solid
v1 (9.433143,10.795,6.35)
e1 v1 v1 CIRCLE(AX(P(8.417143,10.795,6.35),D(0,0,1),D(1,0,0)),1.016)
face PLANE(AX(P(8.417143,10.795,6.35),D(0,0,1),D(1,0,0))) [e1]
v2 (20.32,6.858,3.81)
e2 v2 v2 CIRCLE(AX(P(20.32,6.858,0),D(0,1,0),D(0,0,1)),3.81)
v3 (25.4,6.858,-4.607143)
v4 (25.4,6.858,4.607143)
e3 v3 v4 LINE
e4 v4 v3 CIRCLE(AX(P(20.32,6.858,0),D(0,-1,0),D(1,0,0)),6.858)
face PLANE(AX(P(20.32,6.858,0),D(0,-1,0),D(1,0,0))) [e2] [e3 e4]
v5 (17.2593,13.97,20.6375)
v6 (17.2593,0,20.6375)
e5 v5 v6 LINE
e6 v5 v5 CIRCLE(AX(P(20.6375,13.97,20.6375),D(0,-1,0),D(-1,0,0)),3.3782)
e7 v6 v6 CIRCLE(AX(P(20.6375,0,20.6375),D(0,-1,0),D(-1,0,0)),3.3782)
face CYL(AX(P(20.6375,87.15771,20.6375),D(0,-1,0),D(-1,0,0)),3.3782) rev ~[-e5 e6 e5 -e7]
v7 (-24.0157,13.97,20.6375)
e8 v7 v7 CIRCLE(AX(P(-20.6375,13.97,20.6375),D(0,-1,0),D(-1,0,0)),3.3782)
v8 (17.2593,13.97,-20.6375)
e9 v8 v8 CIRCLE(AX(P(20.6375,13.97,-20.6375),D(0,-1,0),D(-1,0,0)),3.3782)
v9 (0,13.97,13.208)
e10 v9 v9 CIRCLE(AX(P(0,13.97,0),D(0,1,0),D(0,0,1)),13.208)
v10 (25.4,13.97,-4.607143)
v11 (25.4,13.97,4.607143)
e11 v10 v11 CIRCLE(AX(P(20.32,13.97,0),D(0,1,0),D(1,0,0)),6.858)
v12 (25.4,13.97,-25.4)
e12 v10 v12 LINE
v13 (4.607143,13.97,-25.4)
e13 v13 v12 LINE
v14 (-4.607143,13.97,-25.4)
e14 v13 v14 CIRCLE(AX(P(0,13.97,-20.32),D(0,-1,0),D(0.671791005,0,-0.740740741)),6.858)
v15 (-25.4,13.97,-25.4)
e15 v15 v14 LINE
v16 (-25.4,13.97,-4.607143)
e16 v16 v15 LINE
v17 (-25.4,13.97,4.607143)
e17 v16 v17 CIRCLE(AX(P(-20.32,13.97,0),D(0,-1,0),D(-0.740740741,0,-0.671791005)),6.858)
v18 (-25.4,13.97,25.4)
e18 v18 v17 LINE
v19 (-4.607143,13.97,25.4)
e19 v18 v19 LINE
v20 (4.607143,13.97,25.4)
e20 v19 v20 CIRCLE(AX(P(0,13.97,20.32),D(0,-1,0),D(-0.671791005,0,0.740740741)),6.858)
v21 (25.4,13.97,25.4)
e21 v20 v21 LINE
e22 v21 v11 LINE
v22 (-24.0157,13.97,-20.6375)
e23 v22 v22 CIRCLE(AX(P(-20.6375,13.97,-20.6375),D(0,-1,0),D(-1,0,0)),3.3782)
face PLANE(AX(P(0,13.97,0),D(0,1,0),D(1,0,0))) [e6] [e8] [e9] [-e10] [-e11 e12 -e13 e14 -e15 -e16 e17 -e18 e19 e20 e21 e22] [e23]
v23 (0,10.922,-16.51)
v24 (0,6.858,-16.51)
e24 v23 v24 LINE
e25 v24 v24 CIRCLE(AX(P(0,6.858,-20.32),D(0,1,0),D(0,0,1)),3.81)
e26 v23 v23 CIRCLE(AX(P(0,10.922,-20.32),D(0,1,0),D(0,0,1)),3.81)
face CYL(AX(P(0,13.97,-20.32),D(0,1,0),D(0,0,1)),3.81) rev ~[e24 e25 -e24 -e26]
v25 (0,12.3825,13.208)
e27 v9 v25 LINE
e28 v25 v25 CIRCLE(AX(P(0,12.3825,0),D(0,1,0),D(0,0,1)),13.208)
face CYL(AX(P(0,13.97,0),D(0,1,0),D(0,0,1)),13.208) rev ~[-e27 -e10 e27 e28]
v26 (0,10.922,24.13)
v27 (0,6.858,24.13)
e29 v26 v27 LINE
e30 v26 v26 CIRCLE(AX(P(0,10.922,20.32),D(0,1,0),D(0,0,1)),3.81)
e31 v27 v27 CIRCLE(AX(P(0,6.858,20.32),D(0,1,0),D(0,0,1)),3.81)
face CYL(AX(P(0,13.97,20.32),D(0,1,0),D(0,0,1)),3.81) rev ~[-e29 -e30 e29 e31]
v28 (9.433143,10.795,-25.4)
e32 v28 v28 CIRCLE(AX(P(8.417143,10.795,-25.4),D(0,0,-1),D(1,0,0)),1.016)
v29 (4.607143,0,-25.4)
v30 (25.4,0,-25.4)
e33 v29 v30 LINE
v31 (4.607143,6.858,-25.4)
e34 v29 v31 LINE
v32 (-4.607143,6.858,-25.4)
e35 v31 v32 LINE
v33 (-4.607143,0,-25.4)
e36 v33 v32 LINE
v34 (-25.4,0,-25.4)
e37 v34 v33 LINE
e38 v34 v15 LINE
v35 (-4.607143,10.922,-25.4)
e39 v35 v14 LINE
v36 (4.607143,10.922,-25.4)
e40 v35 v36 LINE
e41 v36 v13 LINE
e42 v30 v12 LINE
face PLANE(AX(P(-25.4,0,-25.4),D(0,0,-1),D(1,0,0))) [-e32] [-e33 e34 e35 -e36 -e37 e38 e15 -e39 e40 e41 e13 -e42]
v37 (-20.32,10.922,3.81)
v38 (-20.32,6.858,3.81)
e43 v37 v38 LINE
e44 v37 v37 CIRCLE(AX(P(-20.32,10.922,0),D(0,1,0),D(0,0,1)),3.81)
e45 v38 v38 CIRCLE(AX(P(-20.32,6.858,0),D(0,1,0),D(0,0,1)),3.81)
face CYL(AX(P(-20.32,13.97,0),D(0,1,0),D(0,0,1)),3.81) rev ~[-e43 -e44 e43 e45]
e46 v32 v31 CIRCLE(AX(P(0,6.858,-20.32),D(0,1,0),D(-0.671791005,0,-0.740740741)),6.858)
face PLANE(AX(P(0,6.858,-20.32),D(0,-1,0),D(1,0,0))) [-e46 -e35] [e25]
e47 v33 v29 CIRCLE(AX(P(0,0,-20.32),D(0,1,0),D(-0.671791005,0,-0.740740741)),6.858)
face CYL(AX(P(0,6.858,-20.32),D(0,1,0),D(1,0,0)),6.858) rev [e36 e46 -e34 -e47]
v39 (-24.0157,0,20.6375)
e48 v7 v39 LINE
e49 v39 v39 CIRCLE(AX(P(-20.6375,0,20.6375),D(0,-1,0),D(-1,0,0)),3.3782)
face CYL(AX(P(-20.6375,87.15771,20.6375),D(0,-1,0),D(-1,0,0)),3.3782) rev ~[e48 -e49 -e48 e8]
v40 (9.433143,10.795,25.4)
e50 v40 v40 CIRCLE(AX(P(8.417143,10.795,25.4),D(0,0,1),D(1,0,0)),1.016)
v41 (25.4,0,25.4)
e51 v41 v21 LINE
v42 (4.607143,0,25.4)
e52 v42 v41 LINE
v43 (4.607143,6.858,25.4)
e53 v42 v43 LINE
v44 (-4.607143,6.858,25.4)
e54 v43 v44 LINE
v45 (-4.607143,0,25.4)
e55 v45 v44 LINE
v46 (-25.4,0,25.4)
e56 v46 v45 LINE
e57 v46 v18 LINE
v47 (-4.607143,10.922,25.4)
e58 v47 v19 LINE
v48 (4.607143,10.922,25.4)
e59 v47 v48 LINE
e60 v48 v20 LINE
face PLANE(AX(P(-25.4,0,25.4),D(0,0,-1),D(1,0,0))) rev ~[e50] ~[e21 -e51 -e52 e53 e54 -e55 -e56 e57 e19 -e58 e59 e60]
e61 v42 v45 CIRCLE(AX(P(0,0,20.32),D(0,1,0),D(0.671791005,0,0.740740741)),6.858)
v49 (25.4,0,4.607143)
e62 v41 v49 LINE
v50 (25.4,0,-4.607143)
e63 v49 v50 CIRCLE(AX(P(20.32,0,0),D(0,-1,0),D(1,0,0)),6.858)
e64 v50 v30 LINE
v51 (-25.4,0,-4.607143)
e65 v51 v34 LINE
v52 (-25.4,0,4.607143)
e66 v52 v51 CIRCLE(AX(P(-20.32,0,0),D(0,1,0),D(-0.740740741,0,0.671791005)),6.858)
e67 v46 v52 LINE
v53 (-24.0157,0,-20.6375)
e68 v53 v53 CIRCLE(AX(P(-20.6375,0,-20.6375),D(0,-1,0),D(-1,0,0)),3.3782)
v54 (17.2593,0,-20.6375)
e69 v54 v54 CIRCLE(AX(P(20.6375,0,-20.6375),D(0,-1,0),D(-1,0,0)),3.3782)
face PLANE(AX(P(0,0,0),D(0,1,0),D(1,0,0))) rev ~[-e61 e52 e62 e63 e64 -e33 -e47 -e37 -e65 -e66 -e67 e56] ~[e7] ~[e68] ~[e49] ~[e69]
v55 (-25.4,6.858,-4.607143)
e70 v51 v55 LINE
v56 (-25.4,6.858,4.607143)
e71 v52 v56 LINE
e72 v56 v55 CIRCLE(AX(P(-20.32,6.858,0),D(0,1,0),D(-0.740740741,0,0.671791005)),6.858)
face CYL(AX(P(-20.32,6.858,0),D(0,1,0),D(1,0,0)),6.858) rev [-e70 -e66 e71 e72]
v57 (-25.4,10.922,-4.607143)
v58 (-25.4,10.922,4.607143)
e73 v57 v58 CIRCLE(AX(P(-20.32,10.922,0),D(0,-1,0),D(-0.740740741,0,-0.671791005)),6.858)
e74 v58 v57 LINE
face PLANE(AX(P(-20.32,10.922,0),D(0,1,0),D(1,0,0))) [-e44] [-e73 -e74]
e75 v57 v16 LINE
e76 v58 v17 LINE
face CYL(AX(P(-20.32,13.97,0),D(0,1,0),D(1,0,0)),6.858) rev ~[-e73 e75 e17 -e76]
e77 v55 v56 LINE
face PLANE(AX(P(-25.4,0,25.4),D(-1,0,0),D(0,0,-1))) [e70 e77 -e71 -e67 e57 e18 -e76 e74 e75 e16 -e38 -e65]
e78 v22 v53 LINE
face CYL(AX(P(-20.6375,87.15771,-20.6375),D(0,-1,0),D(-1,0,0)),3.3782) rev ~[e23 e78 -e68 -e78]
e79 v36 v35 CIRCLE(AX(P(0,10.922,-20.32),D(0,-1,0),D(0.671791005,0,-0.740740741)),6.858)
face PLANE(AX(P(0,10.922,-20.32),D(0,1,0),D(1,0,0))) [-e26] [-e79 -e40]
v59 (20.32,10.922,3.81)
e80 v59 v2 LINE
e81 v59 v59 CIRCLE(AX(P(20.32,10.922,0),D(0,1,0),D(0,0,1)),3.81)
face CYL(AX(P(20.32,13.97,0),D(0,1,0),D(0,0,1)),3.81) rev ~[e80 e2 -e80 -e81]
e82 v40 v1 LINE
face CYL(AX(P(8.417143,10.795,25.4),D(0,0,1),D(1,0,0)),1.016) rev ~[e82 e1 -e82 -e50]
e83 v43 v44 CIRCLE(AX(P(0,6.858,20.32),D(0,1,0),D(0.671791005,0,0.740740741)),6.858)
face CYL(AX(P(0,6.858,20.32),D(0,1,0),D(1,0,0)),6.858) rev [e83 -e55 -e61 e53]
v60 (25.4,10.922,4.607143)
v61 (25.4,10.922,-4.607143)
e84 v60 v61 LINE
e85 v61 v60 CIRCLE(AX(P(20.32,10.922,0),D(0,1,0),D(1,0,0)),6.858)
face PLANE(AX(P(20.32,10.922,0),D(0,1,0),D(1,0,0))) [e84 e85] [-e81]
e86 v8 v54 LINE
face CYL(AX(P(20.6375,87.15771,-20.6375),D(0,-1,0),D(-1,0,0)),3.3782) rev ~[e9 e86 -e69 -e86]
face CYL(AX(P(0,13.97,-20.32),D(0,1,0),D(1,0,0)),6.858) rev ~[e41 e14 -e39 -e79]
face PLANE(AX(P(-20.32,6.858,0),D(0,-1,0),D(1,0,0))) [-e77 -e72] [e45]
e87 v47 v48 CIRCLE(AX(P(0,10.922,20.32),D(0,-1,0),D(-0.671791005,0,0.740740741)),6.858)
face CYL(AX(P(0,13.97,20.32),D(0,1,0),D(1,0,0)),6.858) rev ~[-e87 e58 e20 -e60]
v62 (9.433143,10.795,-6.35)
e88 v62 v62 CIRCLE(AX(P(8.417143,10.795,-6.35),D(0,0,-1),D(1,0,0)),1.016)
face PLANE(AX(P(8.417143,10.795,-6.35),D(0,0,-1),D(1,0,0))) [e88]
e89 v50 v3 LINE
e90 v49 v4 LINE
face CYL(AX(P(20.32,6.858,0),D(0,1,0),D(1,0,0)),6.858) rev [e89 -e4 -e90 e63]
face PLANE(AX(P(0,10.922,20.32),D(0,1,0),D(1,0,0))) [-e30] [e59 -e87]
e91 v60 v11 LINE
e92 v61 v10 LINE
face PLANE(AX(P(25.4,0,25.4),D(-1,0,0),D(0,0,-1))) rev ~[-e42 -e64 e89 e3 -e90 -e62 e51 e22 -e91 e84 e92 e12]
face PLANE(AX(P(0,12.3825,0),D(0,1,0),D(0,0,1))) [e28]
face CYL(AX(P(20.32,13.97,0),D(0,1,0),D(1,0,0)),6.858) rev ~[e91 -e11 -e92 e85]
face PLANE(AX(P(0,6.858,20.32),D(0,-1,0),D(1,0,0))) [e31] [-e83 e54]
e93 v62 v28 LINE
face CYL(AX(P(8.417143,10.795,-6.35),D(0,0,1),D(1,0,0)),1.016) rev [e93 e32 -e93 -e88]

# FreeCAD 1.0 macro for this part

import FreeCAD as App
import Part
import Sketcher
Q = App.Units.Quantity

doc = App.newDocument("Part")
params = doc.addObject("Spreadsheet::Sheet", "Params")
for row, (alias, value) in enumerate([
    ("sketch1_width", "2 in"),
    ("pad1_length", "0.55 in"),
    ("sketch2_diameter", "0.266 in"),
    ("hole_diameter", "0.266 in"),
    ("sketch3_diameter", "1.04 in"),
    ("pocket1_length", "0.0625 in"),
    ("sketch4_diameter", "0.3 in"),
    ("sketch5_diameter", "0.54 in"),
    ("pocket3_length", "0.12 in"),
    ("sketch6_diameter", "0.54 in"),
    ("pocket4_length", "0.27 in"),
    ("sketch7_diameter", "0.08 in"),
    ("pocket5_length", "0.75 in"),
    ("sketch8_diameter", "0.08 in"),
    ("pocket6_length", "0.75 in"),
], start=1):
    params.set(f"A{row}", alias)
    params.set(f"B{row}", "=" + value)
    params.setAlias(f"B{row}", alias)

body = doc.addObject("PartDesign::Body", "Body")

sketch1 = body.newObject("Sketcher::SketchObject", "Sketch")
sketch1.AttachmentSupport = (doc.getObject("XZ_Plane"), [""])
sketch1.MapMode = "FlatFace"
sketch1.addGeometry([
    Part.LineSegment(App.Vector(-25.4, -25.4, 0), App.Vector(-25.4, 25.4, 0)),
    Part.LineSegment(App.Vector(-25.4, 25.4, 0), App.Vector(25.4, 25.4, 0)),
    Part.LineSegment(App.Vector(25.4, 25.4, 0), App.Vector(25.4, -25.4, 0)),
    Part.LineSegment(App.Vector(25.4, -25.4, 0), App.Vector(-25.4, -25.4, 0)),
], False)
sketch1.addConstraint([
    Sketcher.Constraint("Coincident", 0, 2, 1, 1),
    Sketcher.Constraint("Coincident", 1, 2, 2, 1),
    Sketcher.Constraint("Coincident", 2, 2, 3, 1),
    Sketcher.Constraint("Coincident", 3, 2, 0, 1),
    Sketcher.Constraint("Vertical", 0),
    Sketcher.Constraint("Horizontal", 1),
    Sketcher.Constraint("Vertical", 2),
    Sketcher.Constraint("Horizontal", 3),
    Sketcher.Constraint("Symmetric", 0, 2, 2, 2, -1, 1),
    Sketcher.Constraint("Equal", 3, 0),
    Sketcher.Constraint("DistanceX", 1, 1, 1, 2, Q("2 in")),
])
sketch1.setExpression("Constraints[10]", "Params.sketch1_width")
pad1 = body.newObject("PartDesign::Pad", "Pad")
pad1.Profile = sketch1
pad1.setExpression("Length", "Params.pad1_length")
pad1.Reversed = True

sketch2 = body.newObject("Sketcher::SketchObject", "Sketch001")
sketch2.AttachmentSupport = (doc.getObject("XZ_Plane"), [""])
sketch2.MapMode = "FlatFace"
sketch2.AttachmentOffset = App.Placement(App.Vector(0, 0, -0.55 * 25.4), App.Rotation())
sketch2.addGeometry([
    Part.Circle(App.Vector(-20.6375, 20.6375, 0), App.Vector(0, 0, 1), 3.3782),
    Part.Circle(App.Vector(-20.6375, -20.6375, 0), App.Vector(0, 0, 1), 3.3782),
    Part.Circle(App.Vector(20.6375, -20.6375, 0), App.Vector(0, 0, 1), 3.3782),
    Part.Circle(App.Vector(20.6375, 20.6375, 0), App.Vector(0, 0, 1), 3.3782),
], False)
sketch2.addConstraint([
    Sketcher.Constraint("Equal", 0, 1),
    Sketcher.Constraint("Equal", 1, 2),
    Sketcher.Constraint("Equal", 2, 3),
    Sketcher.Constraint("Symmetric", 0, 3, 2, 3, -1, 1),
    Sketcher.Constraint("Symmetric", 1, 3, 3, 3, -1, 1),
    Sketcher.Constraint("Symmetric", 1, 3, 2, 3, -2),
    Sketcher.Constraint("Diameter", 0, Q("0.266 in")),
    Sketcher.Constraint("DistanceX", 0, 3, -1, 1, Q("0.8125 in")),
    Sketcher.Constraint("DistanceY", -1, 1, 0, 3, Q("0.8125 in")),
])
sketch2.setExpression("Constraints[6]", "Params.sketch2_diameter")
doc.recompute()
hole = body.newObject("PartDesign::Hole", "Hole")
hole.Profile = sketch2
hole.ThreadType = "None"
hole.setExpression("Diameter", "Params.hole_diameter")
hole.DepthType = "ThroughAll"
hole.Reversed = True

sketch3 = body.newObject("Sketcher::SketchObject", "Sketch002")
sketch3.AttachmentSupport = (doc.getObject("XZ_Plane"), [""])
sketch3.MapMode = "FlatFace"
sketch3.AttachmentOffset = App.Placement(App.Vector(0, 0, -0.55 * 25.4), App.Rotation())
sketch3.addGeometry(Part.Circle(App.Vector(0, 0, 0), App.Vector(0, 0, 1), 13.208), False)
sketch3.addConstraint([
    Sketcher.Constraint("Coincident", 0, 3, -1, 1),
    Sketcher.Constraint("Diameter", 0, Q("1.04 in")),
])
sketch3.setExpression("Constraints[1]", "Params.sketch3_diameter")
pocket1 = body.newObject("PartDesign::Pocket", "Pocket")
pocket1.Profile = sketch3
pocket1.setExpression("Length", "Params.pocket1_length")
pocket1.Reversed = True

sketch4 = body.newObject("Sketcher::SketchObject", "Sketch003")
sketch4.AttachmentSupport = (doc.getObject("XZ_Plane"), [""])
sketch4.MapMode = "FlatFace"
sketch4.AttachmentOffset = App.Placement(App.Vector(0, 0, -0.55 * 25.4), App.Rotation())
sketch4.addGeometry([
    Part.Circle(App.Vector(0, -20.32, 0), App.Vector(0, 0, 1), 3.81),
    Part.Circle(App.Vector(20.32, 0, 0), App.Vector(0, 0, 1), 3.81),
    Part.Circle(App.Vector(0, 20.32, 0), App.Vector(0, 0, 1), 3.81),
    Part.Circle(App.Vector(-20.32, 0, 0), App.Vector(0, 0, 1), 3.81),
], False)
sketch4.addConstraint([
    Sketcher.Constraint("Equal", 0, 1),
    Sketcher.Constraint("Equal", 1, 2),
    Sketcher.Constraint("Equal", 2, 3),
    Sketcher.Constraint("Symmetric", 0, 3, 2, 3, -1, 1),
    Sketcher.Constraint("Symmetric", 1, 3, 3, 3, -1, 1),
    Sketcher.Constraint("PointOnObject", 0, 3, -2),
    Sketcher.Constraint("PointOnObject", 1, 3, -1),
    Sketcher.Constraint("Diameter", 0, Q("0.3 in")),
    Sketcher.Constraint("DistanceY", 0, 3, -1, 1, Q("0.8 in")),
    Sketcher.Constraint("DistanceX", -1, 1, 1, 3, Q("0.8 in")),
])
sketch4.setExpression("Constraints[7]", "Params.sketch4_diameter")
pocket2 = body.newObject("PartDesign::Pocket", "Pocket001")
pocket2.Profile = sketch4
pocket2.Type = "ThroughAll"
pocket2.Reversed = True

sketch5 = body.newObject("Sketcher::SketchObject", "Sketch004")
sketch5.AttachmentSupport = (doc.getObject("XZ_Plane"), [""])
sketch5.MapMode = "FlatFace"
sketch5.AttachmentOffset = App.Placement(App.Vector(0, 0, -0.55 * 25.4), App.Rotation())
sketch5.addGeometry([
    Part.Circle(App.Vector(-20.32, 0, 0), App.Vector(0, 0, 1), 6.858),
    Part.Circle(App.Vector(0, -20.32, 0), App.Vector(0, 0, 1), 6.858),
    Part.Circle(App.Vector(20.32, 0, 0), App.Vector(0, 0, 1), 6.858),
    Part.Circle(App.Vector(0, 20.32, 0), App.Vector(0, 0, 1), 6.858),
], False)
sketch5.addConstraint([
    Sketcher.Constraint("Equal", 0, 1),
    Sketcher.Constraint("Equal", 1, 2),
    Sketcher.Constraint("Equal", 2, 3),
    Sketcher.Constraint("Symmetric", 0, 3, 2, 3, -1, 1),
    Sketcher.Constraint("Symmetric", 1, 3, 3, 3, -1, 1),
    Sketcher.Constraint("PointOnObject", 0, 3, -1),
    Sketcher.Constraint("PointOnObject", 1, 3, -2),
    Sketcher.Constraint("Diameter", 0, Q("0.54 in")),
    Sketcher.Constraint("DistanceX", 0, 3, -1, 1, Q("0.8 in")),
    Sketcher.Constraint("DistanceY", 1, 3, -1, 1, Q("0.8 in")),
])
sketch5.setExpression("Constraints[7]", "Params.sketch5_diameter")
pocket3 = body.newObject("PartDesign::Pocket", "Pocket002")
pocket3.Profile = sketch5
pocket3.setExpression("Length", "Params.pocket3_length")
pocket3.Reversed = True

sketch6 = body.newObject("Sketcher::SketchObject", "Sketch005")
sketch6.AttachmentSupport = (doc.getObject("XZ_Plane"), [""])
sketch6.MapMode = "FlatFace"
sketch6.AttachmentOffset = App.Placement(App.Vector(0, 0, -0.27 * 25.4), App.Rotation())
sketch6.addGeometry([
    Part.Circle(App.Vector(-20.32, 0, 0), App.Vector(0, 0, 1), 6.858),
    Part.Circle(App.Vector(0, 20.32, 0), App.Vector(0, 0, 1), 6.858),
    Part.Circle(App.Vector(20.32, 0, 0), App.Vector(0, 0, 1), 6.858),
    Part.Circle(App.Vector(0, -20.32, 0), App.Vector(0, 0, 1), 6.858),
], False)
sketch6.addConstraint([
    Sketcher.Constraint("Equal", 0, 1),
    Sketcher.Constraint("Equal", 1, 2),
    Sketcher.Constraint("Equal", 2, 3),
    Sketcher.Constraint("Symmetric", 0, 3, 2, 3, -1, 1),
    Sketcher.Constraint("Symmetric", 1, 3, 3, 3, -1, 1),
    Sketcher.Constraint("PointOnObject", 0, 3, -1),
    Sketcher.Constraint("PointOnObject", 1, 3, -2),
    Sketcher.Constraint("Diameter", 0, Q("0.54 in")),
    Sketcher.Constraint("DistanceX", 0, 3, -1, 1, Q("0.8 in")),
    Sketcher.Constraint("DistanceY", -1, 1, 1, 3, Q("0.8 in")),
])
sketch6.setExpression("Constraints[7]", "Params.sketch6_diameter")
pocket4 = body.newObject("PartDesign::Pocket", "Pocket003")
pocket4.Profile = sketch6
pocket4.setExpression("Length", "Params.pocket4_length")
pocket4.Reversed = True

sketch7 = body.newObject("Sketcher::SketchObject", "Sketch006")
sketch7.AttachmentSupport = (doc.getObject("XY_Plane"), [""])
sketch7.MapMode = "FlatFace"
sketch7.AttachmentOffset = App.Placement(App.Vector(0, 0, 1 * 25.4), App.Rotation())
sketch7.addGeometry(Part.Circle(App.Vector(8.417143, 10.795, 0), App.Vector(0, 0, 1), 1.016), False)
sketch7.addConstraint([
    Sketcher.Constraint("Diameter", 0, Q("0.08 in")),
    Sketcher.Constraint("DistanceY", -1, 1, 0, 3, Q("0.425 in")),
    Sketcher.Constraint("DistanceX", -1, 1, 0, 3, Q("8.417143 mm")),
])
sketch7.setExpression("Constraints[0]", "Params.sketch7_diameter")
pocket5 = body.newObject("PartDesign::Pocket", "Pocket004")
pocket5.Profile = sketch7
pocket5.setExpression("Length", "Params.pocket5_length")

sketch8 = body.newObject("Sketcher::SketchObject", "Sketch007")
sketch8.AttachmentSupport = (doc.getObject("XY_Plane"), [""])
sketch8.MapMode = "FlatFace"
sketch8.AttachmentOffset = App.Placement(App.Vector(0, 0, -0.25 * 25.4), App.Rotation())
sketch8.addGeometry(Part.Circle(App.Vector(8.417143, 10.795, 0), App.Vector(0, 0, 1), 1.016), False)
sketch8.addConstraint([
    Sketcher.Constraint("Diameter", 0, Q("0.08 in")),
    Sketcher.Constraint("DistanceY", -1, 1, 0, 3, Q("0.425 in")),
    Sketcher.Constraint("DistanceX", -1, 1, 0, 3, Q("8.417143 mm")),
])
sketch8.setExpression("Constraints[0]", "Params.sketch8_diameter")
pocket6 = body.newObject("PartDesign::Pocket", "Pocket005")
pocket6.Profile = sketch8
pocket6.setExpression("Length", "Params.pocket6_length")

doc.recompute()
